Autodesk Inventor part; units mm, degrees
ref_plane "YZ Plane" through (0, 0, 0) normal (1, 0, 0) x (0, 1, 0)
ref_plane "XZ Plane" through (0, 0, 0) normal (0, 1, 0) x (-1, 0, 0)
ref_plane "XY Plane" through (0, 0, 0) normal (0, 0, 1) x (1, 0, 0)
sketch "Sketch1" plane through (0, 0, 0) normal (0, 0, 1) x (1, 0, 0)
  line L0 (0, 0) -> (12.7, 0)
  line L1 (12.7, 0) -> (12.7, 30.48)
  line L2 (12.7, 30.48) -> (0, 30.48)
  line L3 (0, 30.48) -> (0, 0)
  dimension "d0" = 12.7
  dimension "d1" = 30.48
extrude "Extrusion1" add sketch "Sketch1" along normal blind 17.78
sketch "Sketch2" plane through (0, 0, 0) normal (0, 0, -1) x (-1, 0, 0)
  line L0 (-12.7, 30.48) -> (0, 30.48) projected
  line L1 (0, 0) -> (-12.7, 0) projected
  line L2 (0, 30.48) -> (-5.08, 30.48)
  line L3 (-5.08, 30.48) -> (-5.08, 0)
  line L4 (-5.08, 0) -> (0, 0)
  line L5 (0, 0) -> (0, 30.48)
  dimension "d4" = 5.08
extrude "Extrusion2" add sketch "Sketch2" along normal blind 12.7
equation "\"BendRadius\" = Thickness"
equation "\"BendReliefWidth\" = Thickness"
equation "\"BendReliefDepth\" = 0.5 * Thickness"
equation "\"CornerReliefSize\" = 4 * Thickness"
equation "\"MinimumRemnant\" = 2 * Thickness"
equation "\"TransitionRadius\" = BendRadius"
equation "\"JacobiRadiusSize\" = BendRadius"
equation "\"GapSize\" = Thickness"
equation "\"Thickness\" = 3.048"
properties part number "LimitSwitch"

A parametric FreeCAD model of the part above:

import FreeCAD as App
import Part
import Sketcher
Q = App.Units.Quantity


def add_polygon(sketch, points):
    """Adds a closed chain of lines whose ends are joined by coincident constraints."""
    first, n = sketch.GeometryCount, len(points)
    for a, b in zip(points, points[1:] + points[:1]):
        sketch.addGeometry(Part.LineSegment(App.Vector(*a, 0), App.Vector(*b, 0)), False)
    for i in range(n):
        sketch.addConstraint(Sketcher.Constraint("Coincident", first + i, 2, first + (i + 1) % n, 1))

doc = App.newDocument("Part")
body = doc.addObject("PartDesign::Body", "Body")

sketch1 = body.newObject("Sketcher::SketchObject", "Sketch")
sketch1.AttachmentSupport = (doc.getObject("XY_Plane"), [""])
sketch1.MapMode = "FlatFace"
add_polygon(sketch1, [(0, 30.48), (0, 0), (12.7, 0), (12.7, 30.48)])
sketch1.addConstraint([
    Sketcher.Constraint("Vertical", 0),
    Sketcher.Constraint("Horizontal", 1),
    Sketcher.Constraint("Vertical", 2),
    Sketcher.Constraint("Horizontal", 3),
    Sketcher.Constraint("Coincident", 0, 2, -1, 1),
    Sketcher.Constraint("DistanceX", 1, 1, 1, 2, Q("0.5 in")),
    Sketcher.Constraint("DistanceY", 0, 2, 0, 1, Q("1.2 in")),
])
pad1 = body.newObject("PartDesign::Pad", "Pad")
pad1.Profile = sketch1
pad1.Length = Q("0.7 in")

sketch2 = body.newObject("Sketcher::SketchObject", "Sketch001")
sketch2.AttachmentSupport = (doc.getObject("XY_Plane"), [""])
sketch2.MapMode = "FlatFace"
add_polygon(sketch2, [(0, 30.48), (5.08, 30.48), (5.08, 0), (0, 0)])
sketch2.addConstraint([
    Sketcher.Constraint("Horizontal", 0),
    Sketcher.Constraint("Vertical", 1),
    Sketcher.Constraint("Horizontal", 2),
    Sketcher.Constraint("Vertical", 3),
    Sketcher.Constraint("Coincident", 2, 2, -1, 1),
    Sketcher.Constraint("DistanceX", 0, 1, 0, 2, Q("0.2 in")),
    Sketcher.Constraint("DistanceY", 1, 2, 1, 1, Q("1.2 in")),
])
pad2 = body.newObject("PartDesign::Pad", "Pad001")
pad2.Profile = sketch2
pad2.Length = Q("0.5 in")
pad2.Reversed = True

doc.recompute()
